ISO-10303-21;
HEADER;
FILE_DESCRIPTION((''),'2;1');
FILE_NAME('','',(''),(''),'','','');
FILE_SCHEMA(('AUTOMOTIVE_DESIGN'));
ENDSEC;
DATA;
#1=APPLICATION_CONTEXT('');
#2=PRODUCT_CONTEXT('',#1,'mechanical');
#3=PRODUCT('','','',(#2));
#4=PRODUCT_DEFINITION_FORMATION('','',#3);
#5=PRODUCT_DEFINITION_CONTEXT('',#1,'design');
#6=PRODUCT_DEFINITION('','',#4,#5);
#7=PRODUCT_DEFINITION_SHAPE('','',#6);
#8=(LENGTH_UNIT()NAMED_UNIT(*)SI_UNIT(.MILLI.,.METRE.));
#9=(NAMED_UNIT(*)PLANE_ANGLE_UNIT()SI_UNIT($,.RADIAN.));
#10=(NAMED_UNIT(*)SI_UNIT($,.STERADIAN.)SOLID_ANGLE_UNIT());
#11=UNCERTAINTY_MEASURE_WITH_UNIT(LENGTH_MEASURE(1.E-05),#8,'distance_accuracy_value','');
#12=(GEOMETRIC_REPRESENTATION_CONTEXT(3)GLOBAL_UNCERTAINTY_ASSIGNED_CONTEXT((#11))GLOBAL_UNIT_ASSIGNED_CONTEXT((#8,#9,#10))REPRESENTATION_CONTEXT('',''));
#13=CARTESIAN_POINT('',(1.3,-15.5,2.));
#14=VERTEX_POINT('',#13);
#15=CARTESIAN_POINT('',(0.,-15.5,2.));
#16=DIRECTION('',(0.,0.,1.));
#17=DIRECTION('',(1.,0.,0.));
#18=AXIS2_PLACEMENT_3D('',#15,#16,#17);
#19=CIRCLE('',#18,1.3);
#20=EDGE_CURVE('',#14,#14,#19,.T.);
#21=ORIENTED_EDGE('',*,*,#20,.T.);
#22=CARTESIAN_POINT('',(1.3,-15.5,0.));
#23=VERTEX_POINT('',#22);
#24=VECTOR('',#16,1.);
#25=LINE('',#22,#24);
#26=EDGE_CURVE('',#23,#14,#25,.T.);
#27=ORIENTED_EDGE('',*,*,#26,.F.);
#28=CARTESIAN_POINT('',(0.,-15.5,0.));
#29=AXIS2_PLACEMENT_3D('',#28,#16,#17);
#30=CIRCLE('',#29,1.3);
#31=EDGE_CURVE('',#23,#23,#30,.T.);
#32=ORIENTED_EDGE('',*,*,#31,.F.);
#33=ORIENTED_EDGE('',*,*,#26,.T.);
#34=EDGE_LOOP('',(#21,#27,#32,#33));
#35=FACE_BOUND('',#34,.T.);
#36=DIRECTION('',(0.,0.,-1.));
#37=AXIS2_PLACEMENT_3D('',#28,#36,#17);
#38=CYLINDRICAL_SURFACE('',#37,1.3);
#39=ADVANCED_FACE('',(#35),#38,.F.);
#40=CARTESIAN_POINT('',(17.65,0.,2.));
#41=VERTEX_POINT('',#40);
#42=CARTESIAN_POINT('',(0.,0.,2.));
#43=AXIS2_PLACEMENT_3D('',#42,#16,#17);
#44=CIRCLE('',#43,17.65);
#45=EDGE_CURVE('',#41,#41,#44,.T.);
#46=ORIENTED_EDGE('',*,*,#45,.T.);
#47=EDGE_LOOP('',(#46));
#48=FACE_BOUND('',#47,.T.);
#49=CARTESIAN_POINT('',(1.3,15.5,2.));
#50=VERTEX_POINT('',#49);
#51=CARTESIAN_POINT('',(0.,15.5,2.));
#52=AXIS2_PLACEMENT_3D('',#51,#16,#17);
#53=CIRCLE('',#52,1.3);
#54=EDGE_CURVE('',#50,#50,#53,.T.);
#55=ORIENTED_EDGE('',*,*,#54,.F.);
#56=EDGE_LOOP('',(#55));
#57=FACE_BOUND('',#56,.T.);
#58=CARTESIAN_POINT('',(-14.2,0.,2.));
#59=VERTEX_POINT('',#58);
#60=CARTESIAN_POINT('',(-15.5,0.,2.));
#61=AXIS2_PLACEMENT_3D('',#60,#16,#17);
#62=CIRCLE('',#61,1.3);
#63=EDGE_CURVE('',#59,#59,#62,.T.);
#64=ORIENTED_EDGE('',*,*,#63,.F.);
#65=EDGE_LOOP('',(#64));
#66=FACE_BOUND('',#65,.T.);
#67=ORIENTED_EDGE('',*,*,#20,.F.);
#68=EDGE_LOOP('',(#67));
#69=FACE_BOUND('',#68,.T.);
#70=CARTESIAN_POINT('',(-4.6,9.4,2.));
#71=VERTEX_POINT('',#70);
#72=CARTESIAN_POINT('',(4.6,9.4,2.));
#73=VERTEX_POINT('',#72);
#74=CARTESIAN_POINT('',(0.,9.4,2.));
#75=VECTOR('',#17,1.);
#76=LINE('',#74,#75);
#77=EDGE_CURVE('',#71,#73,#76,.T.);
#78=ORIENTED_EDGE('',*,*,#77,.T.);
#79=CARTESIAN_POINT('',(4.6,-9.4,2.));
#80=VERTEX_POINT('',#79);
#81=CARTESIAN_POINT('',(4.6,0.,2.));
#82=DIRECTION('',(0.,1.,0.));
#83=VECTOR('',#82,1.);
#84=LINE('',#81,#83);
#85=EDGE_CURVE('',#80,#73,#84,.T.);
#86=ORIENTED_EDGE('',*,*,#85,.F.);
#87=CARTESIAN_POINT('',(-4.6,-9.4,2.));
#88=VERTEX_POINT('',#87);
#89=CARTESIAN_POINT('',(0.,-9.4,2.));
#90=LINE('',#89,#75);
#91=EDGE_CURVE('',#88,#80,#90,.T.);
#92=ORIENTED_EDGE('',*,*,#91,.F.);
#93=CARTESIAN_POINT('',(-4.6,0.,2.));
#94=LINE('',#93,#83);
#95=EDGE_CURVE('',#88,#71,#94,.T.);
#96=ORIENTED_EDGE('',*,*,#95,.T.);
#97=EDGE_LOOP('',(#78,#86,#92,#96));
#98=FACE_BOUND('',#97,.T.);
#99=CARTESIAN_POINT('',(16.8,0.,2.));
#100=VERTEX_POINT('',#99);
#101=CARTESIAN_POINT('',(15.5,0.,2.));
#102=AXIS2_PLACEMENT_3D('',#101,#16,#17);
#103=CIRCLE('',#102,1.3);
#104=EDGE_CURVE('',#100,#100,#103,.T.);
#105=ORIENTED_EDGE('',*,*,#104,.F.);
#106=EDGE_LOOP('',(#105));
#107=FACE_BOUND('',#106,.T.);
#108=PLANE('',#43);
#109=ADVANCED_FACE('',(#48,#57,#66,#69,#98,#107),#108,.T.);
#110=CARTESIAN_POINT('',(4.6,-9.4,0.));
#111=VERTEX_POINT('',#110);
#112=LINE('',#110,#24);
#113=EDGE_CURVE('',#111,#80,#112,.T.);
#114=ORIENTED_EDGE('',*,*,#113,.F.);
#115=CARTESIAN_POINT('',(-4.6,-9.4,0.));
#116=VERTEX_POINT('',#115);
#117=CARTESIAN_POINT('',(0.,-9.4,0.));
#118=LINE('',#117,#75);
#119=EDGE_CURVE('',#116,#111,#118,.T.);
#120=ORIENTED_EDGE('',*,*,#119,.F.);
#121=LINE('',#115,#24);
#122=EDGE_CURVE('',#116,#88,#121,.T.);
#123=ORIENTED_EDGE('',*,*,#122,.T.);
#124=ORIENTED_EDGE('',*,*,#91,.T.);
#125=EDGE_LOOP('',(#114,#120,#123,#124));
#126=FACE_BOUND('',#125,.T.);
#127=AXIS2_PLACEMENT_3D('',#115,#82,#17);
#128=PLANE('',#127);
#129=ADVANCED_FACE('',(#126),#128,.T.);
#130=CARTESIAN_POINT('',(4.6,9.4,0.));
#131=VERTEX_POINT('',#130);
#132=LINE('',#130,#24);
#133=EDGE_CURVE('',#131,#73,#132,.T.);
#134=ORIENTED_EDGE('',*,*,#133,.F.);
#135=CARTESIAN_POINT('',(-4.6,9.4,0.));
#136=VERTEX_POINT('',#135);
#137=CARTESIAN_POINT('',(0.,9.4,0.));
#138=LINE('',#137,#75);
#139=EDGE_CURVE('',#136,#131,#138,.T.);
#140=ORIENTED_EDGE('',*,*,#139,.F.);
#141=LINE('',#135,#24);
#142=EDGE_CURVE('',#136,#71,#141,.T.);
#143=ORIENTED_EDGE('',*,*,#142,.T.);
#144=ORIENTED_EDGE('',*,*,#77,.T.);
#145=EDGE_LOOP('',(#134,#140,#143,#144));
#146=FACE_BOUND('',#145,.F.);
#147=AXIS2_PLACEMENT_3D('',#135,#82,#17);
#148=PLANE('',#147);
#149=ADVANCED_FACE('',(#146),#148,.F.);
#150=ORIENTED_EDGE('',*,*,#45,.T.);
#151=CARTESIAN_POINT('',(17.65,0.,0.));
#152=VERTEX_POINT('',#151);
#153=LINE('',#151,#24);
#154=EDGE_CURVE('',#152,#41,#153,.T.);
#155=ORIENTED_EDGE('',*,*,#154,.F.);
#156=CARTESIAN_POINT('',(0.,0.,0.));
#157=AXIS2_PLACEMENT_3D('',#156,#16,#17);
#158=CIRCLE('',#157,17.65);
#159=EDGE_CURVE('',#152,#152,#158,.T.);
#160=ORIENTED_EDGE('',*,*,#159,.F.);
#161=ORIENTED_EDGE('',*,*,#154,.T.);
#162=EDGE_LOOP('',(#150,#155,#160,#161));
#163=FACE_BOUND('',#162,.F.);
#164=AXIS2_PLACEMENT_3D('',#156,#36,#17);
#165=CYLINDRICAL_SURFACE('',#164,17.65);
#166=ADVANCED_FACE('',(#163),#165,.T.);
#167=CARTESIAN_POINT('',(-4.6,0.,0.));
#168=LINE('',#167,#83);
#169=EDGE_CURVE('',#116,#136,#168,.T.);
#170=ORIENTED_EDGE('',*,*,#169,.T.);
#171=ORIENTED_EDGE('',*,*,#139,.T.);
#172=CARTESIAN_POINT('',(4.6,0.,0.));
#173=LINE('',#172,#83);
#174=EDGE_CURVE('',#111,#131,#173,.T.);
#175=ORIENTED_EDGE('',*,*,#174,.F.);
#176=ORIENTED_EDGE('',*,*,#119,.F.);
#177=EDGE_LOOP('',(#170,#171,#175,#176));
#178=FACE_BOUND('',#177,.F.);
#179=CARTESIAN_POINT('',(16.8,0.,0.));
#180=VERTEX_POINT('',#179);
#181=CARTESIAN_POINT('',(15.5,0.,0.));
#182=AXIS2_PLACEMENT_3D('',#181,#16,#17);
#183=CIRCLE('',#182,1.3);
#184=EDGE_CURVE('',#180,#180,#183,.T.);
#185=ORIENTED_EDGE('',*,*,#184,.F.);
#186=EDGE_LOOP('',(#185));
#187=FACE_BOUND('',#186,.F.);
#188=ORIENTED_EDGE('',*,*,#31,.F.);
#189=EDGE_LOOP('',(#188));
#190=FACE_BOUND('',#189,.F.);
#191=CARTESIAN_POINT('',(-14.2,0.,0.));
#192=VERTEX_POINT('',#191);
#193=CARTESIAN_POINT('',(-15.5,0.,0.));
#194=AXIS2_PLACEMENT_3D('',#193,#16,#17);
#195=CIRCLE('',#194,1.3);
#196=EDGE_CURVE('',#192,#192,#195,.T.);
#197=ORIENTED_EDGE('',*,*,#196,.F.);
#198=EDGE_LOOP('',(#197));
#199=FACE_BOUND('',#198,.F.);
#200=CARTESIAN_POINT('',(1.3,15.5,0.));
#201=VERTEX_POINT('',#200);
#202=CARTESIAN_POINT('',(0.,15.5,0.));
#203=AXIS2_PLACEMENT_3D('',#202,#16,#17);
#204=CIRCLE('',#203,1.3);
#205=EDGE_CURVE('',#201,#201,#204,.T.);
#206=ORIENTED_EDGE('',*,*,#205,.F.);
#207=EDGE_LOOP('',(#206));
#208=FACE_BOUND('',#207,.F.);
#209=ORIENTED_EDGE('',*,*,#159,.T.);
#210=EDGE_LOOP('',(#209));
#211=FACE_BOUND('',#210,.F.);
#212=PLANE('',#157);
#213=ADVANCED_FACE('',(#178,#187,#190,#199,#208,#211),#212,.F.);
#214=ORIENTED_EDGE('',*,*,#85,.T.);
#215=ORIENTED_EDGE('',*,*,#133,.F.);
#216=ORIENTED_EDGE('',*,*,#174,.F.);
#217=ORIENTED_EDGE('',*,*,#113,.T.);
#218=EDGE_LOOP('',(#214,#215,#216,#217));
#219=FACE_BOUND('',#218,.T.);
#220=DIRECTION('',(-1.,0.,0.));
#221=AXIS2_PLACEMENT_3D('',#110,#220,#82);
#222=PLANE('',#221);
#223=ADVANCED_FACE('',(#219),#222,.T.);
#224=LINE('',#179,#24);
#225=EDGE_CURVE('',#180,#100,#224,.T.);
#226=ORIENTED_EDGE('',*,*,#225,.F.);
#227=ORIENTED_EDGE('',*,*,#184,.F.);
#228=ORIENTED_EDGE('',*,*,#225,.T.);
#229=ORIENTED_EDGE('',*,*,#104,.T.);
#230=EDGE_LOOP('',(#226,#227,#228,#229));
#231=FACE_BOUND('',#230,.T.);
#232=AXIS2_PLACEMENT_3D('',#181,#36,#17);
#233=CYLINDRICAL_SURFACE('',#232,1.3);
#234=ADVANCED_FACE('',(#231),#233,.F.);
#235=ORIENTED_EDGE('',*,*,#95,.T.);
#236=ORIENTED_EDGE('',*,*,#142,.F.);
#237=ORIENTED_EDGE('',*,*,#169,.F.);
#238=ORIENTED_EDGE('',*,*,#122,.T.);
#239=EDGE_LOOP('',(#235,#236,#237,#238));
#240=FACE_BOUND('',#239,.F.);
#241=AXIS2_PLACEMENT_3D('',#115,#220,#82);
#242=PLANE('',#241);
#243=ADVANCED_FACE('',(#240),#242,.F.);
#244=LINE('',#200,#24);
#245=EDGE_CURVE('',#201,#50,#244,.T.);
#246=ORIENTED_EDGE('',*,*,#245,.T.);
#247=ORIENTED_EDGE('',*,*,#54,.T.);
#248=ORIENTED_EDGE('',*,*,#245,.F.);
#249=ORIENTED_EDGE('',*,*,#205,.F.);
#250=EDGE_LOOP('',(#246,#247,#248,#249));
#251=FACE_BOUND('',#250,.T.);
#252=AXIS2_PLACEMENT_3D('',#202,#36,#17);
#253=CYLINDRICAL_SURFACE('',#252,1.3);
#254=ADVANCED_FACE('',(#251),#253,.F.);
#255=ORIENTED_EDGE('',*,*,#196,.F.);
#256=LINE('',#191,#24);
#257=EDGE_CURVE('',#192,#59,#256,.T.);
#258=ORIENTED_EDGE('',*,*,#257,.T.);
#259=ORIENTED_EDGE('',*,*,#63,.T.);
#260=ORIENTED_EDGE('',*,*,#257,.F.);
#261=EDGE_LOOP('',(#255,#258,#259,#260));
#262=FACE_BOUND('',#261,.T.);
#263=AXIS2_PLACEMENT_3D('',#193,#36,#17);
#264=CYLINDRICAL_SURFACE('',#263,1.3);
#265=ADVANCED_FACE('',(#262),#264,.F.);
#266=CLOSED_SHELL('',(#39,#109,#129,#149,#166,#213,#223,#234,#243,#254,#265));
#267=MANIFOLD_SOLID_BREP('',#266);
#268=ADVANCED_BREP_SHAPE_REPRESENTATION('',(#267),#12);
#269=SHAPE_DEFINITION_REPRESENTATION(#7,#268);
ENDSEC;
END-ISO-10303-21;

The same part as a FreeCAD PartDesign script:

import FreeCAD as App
import Part
import Sketcher
Q = App.Units.Quantity


def add_polygon(sketch, points):
    """Adds a closed chain of lines whose ends are joined by coincident constraints."""
    first, n = sketch.GeometryCount, len(points)
    for a, b in zip(points, points[1:] + points[:1]):
        sketch.addGeometry(Part.LineSegment(App.Vector(*a, 0), App.Vector(*b, 0)), False)
    for i in range(n):
        sketch.addConstraint(Sketcher.Constraint("Coincident", first + i, 2, first + (i + 1) % n, 1))

doc = App.newDocument("Part")
body = doc.addObject("PartDesign::Body", "Body")

sketch1 = body.newObject("Sketcher::SketchObject", "Sketch")
sketch1.AttachmentSupport = (doc.getObject("XY_Plane"), [""])
sketch1.MapMode = "FlatFace"
sketch1.addGeometry(Part.Circle(App.Vector(0, 0, 0), App.Vector(0, 0, 1), 17.6), False)
sketch1.addGeometry(Part.Circle(App.Vector(0, -15.5, 0), App.Vector(0, 0, 1), 1.3), False)
sketch1.addGeometry(Part.Circle(App.Vector(-15.5, 0, 0), App.Vector(0, 0, 1), 1.3), False)
add_polygon(sketch1, [(4.6, -9.4), (-4.6, -9.4), (-4.6, 9.4), (4.6, 9.4)])
sketch1.addGeometry(Part.Circle(App.Vector(15.5, 0, 0), App.Vector(0, 0, 1), 1.3), False)
sketch1.addGeometry(Part.Circle(App.Vector(0, 15.5, 0), App.Vector(0, 0, 1), 1.3), False)
sketch1.addConstraint([
    Sketcher.Constraint("Horizontal", 3),
    Sketcher.Constraint("Vertical", 4),
    Sketcher.Constraint("Horizontal", 5),
    Sketcher.Constraint("Vertical", 6),
    Sketcher.Constraint("Coincident", 0, 3, -1, 1),
    Sketcher.Constraint("Equal", 1, 2),
    Sketcher.Constraint("Equal", 2, 7),
    Sketcher.Constraint("Equal", 7, 8),
    Sketcher.Constraint("Symmetric", 2, 3, 7, 3, -1, 1),
    Sketcher.Constraint("Symmetric", 1, 3, 8, 3, -1, 1),
    Sketcher.Constraint("Symmetric", 3, 2, 5, 2, -1, 1),
    Sketcher.Constraint("PointOnObject", 1, 3, -2),
    Sketcher.Constraint("PointOnObject", 2, 3, -1),
    Sketcher.Constraint("Diameter", 0, Q("35.3 mm")),
    Sketcher.Constraint("Diameter", 1, Q("2.6 mm")),
    Sketcher.Constraint("DistanceX", 3, 2, 3, 1, Q("9.2 mm")),
    Sketcher.Constraint("DistanceY", 4, 1, 4, 2, Q("18.8 mm")),
    Sketcher.Constraint("DistanceX", 2, 3, 7, 3, Q("31 mm")),
    Sketcher.Constraint("DistanceY", 1, 3, 8, 3, Q("31 mm")),
])
pad1 = body.newObject("PartDesign::Pad", "Pad")
pad1.Profile = sketch1
pad1.Length = 2

doc.recompute()
